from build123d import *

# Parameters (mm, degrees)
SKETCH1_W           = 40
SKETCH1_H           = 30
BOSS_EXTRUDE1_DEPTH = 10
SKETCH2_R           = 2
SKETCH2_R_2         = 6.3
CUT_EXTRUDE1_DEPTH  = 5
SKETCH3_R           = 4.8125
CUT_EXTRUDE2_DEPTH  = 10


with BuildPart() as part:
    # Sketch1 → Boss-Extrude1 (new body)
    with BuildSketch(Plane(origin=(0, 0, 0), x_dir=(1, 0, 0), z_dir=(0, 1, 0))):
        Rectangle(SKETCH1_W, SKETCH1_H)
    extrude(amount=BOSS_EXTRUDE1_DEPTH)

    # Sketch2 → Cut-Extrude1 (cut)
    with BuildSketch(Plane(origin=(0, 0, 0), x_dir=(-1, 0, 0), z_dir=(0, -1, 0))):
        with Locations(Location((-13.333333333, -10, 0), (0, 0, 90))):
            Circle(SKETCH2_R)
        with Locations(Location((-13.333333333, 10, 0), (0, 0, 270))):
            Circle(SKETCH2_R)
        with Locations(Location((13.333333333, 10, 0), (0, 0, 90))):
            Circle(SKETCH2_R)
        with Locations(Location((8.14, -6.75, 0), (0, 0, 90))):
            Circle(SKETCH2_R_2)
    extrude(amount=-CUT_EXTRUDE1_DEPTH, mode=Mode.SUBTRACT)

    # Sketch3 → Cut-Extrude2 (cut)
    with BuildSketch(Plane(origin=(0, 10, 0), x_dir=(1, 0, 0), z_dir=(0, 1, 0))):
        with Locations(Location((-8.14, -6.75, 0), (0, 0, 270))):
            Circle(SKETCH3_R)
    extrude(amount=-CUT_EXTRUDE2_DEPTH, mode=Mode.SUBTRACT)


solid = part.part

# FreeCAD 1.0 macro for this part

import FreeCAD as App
import Part
import Sketcher

V = App.Vector


def add_polygon(sketch, points):
    """Adds a closed chain of lines whose ends are joined by coincident constraints."""
    first, n = sketch.GeometryCount, len(points)
    for a, b in zip(points, points[1:] + points[:1]):
        sketch.addGeometry(Part.LineSegment(App.Vector(*a, 0), App.Vector(*b, 0)), False)
    for i in range(n):
        sketch.addConstraint(Sketcher.Constraint("Coincident", first + i, 2, first + (i + 1) % n, 1))

doc = App.newDocument("Part")
params = doc.addObject("Spreadsheet::Sheet", "Params")
for row, (alias, value) in enumerate([
    ("sketch1_width", "40 mm"),
    ("sketch1_height", "30 mm"),
    ("pad1_length", "10 mm"),
    ("sketch2_diameter", "4 mm"),
    ("sketch2_diameter2", "12.6 mm"),
    ("pocket1_length", "5 mm"),
    ("pocket2_length", "10 mm"),
], start=1):
    params.set(f"A{row}", alias)
    params.set(f"B{row}", "=" + value)
    params.setAlias(f"B{row}", alias)

body = doc.addObject("PartDesign::Body", "Body")

# Sketch on XZ plane
sketch1 = doc.addObject("Sketcher::SketchObject", "Sketch")
body.addObject(sketch1)
sketch1.AttachmentSupport = (doc.XZ_Plane, [""])
sketch1.MapMode = "FlatFace"
add_polygon(sketch1, [(-20, -15), (-20, 15), (20, 15), (20, -15)])  # lines 0-3
sketch1.addConstraint([
    Sketcher.Constraint("Vertical", 0),
    Sketcher.Constraint("Horizontal", 1),
    Sketcher.Constraint("Vertical", 2),
    Sketcher.Constraint("Horizontal", 3),
    Sketcher.Constraint("Symmetric", 0, 2, 2, 2, -1, 1),
    Sketcher.Constraint("DistanceX", 1, 1, 1, 2, 40.0),
    Sketcher.Constraint("DistanceY", 0, 1, 0, 2, 30.0),
])
sketch1.setExpression("Constraints[9]", "Params.sketch1_width")
sketch1.setExpression("Constraints[10]", "Params.sketch1_height")
pad1 = doc.addObject("PartDesign::Pad", "Pad")
body.addObject(pad1)
pad1.Profile = sketch1
pad1.setExpression("Length", "Params.pad1_length")
pad1.Reversed = True

# Sketch on XZ plane
sketch2 = doc.addObject("Sketcher::SketchObject", "Sketch001")
body.addObject(sketch2)
sketch2.AttachmentSupport = (doc.XZ_Plane, [""])
sketch2.MapMode = "FlatFace"
sketch2.addGeometry([
    Part.Circle(V(13.3, 10, 0), V(0, 0, 1), 2),
    Part.Circle(V(13.3, -10, 0), V(0, 0, 1), 2),
    Part.Circle(V(-13.3, -10, 0), V(0, 0, 1), 2),
    Part.Circle(V(-8.1, 6.8, 0), V(0, 0, 1), 6.3),
], False)
sketch2.addConstraint([
    Sketcher.Constraint("Equal", 0, 1),
    Sketcher.Constraint("Equal", 1, 2),
    Sketcher.Constraint("Symmetric", 0, 3, 2, 3, -1, 1),
    Sketcher.Constraint("Symmetric", 1, 3, 2, 3, -2),
    Sketcher.Constraint("Diameter", 0, 4.0),
    Sketcher.Constraint("Diameter", 3, 12.6),
    Sketcher.Constraint("DistanceY", -1, 1, 0, 3, 10.0),
    Sketcher.Constraint("DistanceX", 3, 3, -1, 1, 8.14),
    Sketcher.Constraint("DistanceY", -1, 1, 3, 3, 6.75),
    Sketcher.Constraint("DistanceX", -1, 1, 0, 3, 13.333333),
])
sketch2.setExpression("Constraints[4]", "Params.sketch2_diameter")
sketch2.setExpression("Constraints[5]", "Params.sketch2_diameter2")
pocket1 = doc.addObject("PartDesign::Pocket", "Pocket")
body.addObject(pocket1)
pocket1.Profile = sketch2
pocket1.setExpression("Length", "Params.pocket1_length")

# Sketch on XZ plane
sketch3 = doc.addObject("Sketcher::SketchObject", "Sketch002")
body.addObject(sketch3)
sketch3.AttachmentSupport = (doc.XZ_Plane, [""])
sketch3.MapMode = "FlatFace"
sketch3.AttachmentOffset = App.Placement(V(0, 0, -10), App.Rotation())
sketch3.addGeometry(Part.Circle(V(-8.1, 6.8, 0), V(0, 0, 1), 4.8), False)
sketch3.addConstraint([
    Sketcher.Constraint("Diameter", 0, 9.625),
    Sketcher.Constraint("DistanceX", 0, 3, -1, 1, 8.14),
    Sketcher.Constraint("DistanceY", -1, 1, 0, 3, 6.75),
])
pocket2 = doc.addObject("PartDesign::Pocket", "Pocket001")
body.addObject(pocket2)
pocket2.Profile = sketch3
pocket2.setExpression("Length", "Params.pocket2_length")
pocket2.Reversed = True

doc.recompute()
